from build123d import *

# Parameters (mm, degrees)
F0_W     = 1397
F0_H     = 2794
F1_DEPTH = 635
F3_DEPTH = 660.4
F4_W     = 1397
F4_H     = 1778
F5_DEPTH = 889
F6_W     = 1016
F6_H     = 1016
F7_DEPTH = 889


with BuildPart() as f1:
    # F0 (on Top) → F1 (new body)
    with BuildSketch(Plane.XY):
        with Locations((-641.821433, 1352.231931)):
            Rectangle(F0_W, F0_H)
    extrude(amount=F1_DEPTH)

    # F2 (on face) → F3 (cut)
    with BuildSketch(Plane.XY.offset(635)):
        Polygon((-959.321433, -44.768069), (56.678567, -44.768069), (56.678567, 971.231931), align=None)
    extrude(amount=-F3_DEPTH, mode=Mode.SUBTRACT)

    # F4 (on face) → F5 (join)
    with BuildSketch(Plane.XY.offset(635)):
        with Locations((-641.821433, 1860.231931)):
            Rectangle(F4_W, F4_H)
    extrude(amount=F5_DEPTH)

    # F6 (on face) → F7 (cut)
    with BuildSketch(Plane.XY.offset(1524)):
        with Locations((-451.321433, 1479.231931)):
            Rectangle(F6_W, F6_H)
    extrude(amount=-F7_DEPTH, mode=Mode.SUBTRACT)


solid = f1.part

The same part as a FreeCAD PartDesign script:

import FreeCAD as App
import Part
import Sketcher
Q = App.Units.Quantity


def add_polygon(sketch, points):
    """Adds a closed chain of lines whose ends are joined by coincident constraints."""
    first, n = sketch.GeometryCount, len(points)
    for a, b in zip(points, points[1:] + points[:1]):
        sketch.addGeometry(Part.LineSegment(App.Vector(*a, 0), App.Vector(*b, 0)), False)
    for i in range(n):
        sketch.addConstraint(Sketcher.Constraint("Coincident", first + i, 2, first + (i + 1) % n, 1))

doc = App.newDocument("Part")
body = doc.addObject("PartDesign::Body", "Body")

sketch1 = body.newObject("Sketcher::SketchObject", "Sketch")
sketch1.AttachmentSupport = (doc.getObject("XY_Plane"), [""])
sketch1.MapMode = "FlatFace"
add_polygon(sketch1, [(-1340, 2749), (-1340, -45), (57, -45), (57, 2749)])
sketch1.addConstraint(Sketcher.Constraint("Vertical", 0))
sketch1.addConstraint(Sketcher.Constraint("Horizontal", 1))
sketch1.addConstraint(Sketcher.Constraint("Vertical", 2))
sketch1.addConstraint(Sketcher.Constraint("Horizontal", 3))
sketch1.addConstraint(Sketcher.Constraint("DistanceX", 1, 1, 1, 2, Q("55 in")))
sketch1.addConstraint(Sketcher.Constraint("DistanceY", 0, 2, 0, 1, Q("110 in")))
sketch1.addConstraint(Sketcher.Constraint("DistanceY", 0, 2, -1, 1, Q("44.768069 mm")))
sketch1.addConstraint(Sketcher.Constraint("DistanceX", 0, 2, -1, 1, Q("1340.321433 mm")))
pad1 = body.newObject("PartDesign::Pad", "Pad")
pad1.Profile = sketch1
pad1.Length = Q("25 in")

sketch2 = body.newObject("Sketcher::SketchObject", "Sketch001")
sketch2.AttachmentSupport = (doc.getObject("XY_Plane"), [""])
sketch2.MapMode = "FlatFace"
sketch2.AttachmentOffset = App.Placement(App.Vector(0, 0, 25 * 25.4), App.Rotation())
add_polygon(sketch2, [(-959, -45), (57, -45), (57, 971)])
sketch2.addConstraint(Sketcher.Constraint("Horizontal", 0))
sketch2.addConstraint(Sketcher.Constraint("Vertical", 1))
sketch2.addConstraint(Sketcher.Constraint("Equal", 0, 1))
sketch2.addConstraint(Sketcher.Constraint("DistanceX", 0, 1, 0, 2, Q("40 in")))
sketch2.addConstraint(Sketcher.Constraint("DistanceY", 0, 2, -1, 1, Q("44.768069 mm")))
sketch2.addConstraint(Sketcher.Constraint("DistanceX", -1, 1, 0, 2, Q("56.678567 mm")))
pocket1 = body.newObject("PartDesign::Pocket", "Pocket")
pocket1.Profile = sketch2
pocket1.Length = Q("26 in")

sketch3 = body.newObject("Sketcher::SketchObject", "Sketch002")
sketch3.AttachmentSupport = (doc.getObject("XY_Plane"), [""])
sketch3.MapMode = "FlatFace"
sketch3.AttachmentOffset = App.Placement(App.Vector(0, 0, 25 * 25.4), App.Rotation())
add_polygon(sketch3, [(-1340, 2749), (-1340, 971), (57, 971), (57, 2749)])
sketch3.addConstraint(Sketcher.Constraint("Vertical", 0))
sketch3.addConstraint(Sketcher.Constraint("Horizontal", 1))
sketch3.addConstraint(Sketcher.Constraint("Vertical", 2))
sketch3.addConstraint(Sketcher.Constraint("Horizontal", 3))
sketch3.addConstraint(Sketcher.Constraint("DistanceX", 1, 1, 1, 2, Q("55 in")))
sketch3.addConstraint(Sketcher.Constraint("DistanceY", 0, 2, 0, 1, Q("70 in")))
sketch3.addConstraint(Sketcher.Constraint("DistanceY", -1, 1, 0, 2, Q("971.231931 mm")))
sketch3.addConstraint(Sketcher.Constraint("DistanceX", 0, 2, -1, 1, Q("1340.321433 mm")))
pad2 = body.newObject("PartDesign::Pad", "Pad001")
pad2.Profile = sketch3
pad2.Length = Q("35 in")

sketch4 = body.newObject("Sketcher::SketchObject", "Sketch003")
sketch4.AttachmentSupport = (doc.getObject("XY_Plane"), [""])
sketch4.MapMode = "FlatFace"
sketch4.AttachmentOffset = App.Placement(App.Vector(0, 0, 60 * 25.4), App.Rotation())
add_polygon(sketch4, [(-959, 1987), (-959, 971), (57, 971), (57, 1987)])
sketch4.addConstraint(Sketcher.Constraint("Vertical", 0))
sketch4.addConstraint(Sketcher.Constraint("Horizontal", 1))
sketch4.addConstraint(Sketcher.Constraint("Vertical", 2))
sketch4.addConstraint(Sketcher.Constraint("Horizontal", 3))
sketch4.addConstraint(Sketcher.Constraint("Equal", 3, 0))
sketch4.addConstraint(Sketcher.Constraint("DistanceX", 1, 1, 1, 2, Q("40 in")))
sketch4.addConstraint(Sketcher.Constraint("DistanceY", -1, 1, 0, 2, Q("971.231931 mm")))
sketch4.addConstraint(Sketcher.Constraint("DistanceX", 0, 2, -1, 1, Q("959.321433 mm")))
pocket2 = body.newObject("PartDesign::Pocket", "Pocket001")
pocket2.Profile = sketch4
pocket2.Length = Q("35 in")

doc.recompute()
